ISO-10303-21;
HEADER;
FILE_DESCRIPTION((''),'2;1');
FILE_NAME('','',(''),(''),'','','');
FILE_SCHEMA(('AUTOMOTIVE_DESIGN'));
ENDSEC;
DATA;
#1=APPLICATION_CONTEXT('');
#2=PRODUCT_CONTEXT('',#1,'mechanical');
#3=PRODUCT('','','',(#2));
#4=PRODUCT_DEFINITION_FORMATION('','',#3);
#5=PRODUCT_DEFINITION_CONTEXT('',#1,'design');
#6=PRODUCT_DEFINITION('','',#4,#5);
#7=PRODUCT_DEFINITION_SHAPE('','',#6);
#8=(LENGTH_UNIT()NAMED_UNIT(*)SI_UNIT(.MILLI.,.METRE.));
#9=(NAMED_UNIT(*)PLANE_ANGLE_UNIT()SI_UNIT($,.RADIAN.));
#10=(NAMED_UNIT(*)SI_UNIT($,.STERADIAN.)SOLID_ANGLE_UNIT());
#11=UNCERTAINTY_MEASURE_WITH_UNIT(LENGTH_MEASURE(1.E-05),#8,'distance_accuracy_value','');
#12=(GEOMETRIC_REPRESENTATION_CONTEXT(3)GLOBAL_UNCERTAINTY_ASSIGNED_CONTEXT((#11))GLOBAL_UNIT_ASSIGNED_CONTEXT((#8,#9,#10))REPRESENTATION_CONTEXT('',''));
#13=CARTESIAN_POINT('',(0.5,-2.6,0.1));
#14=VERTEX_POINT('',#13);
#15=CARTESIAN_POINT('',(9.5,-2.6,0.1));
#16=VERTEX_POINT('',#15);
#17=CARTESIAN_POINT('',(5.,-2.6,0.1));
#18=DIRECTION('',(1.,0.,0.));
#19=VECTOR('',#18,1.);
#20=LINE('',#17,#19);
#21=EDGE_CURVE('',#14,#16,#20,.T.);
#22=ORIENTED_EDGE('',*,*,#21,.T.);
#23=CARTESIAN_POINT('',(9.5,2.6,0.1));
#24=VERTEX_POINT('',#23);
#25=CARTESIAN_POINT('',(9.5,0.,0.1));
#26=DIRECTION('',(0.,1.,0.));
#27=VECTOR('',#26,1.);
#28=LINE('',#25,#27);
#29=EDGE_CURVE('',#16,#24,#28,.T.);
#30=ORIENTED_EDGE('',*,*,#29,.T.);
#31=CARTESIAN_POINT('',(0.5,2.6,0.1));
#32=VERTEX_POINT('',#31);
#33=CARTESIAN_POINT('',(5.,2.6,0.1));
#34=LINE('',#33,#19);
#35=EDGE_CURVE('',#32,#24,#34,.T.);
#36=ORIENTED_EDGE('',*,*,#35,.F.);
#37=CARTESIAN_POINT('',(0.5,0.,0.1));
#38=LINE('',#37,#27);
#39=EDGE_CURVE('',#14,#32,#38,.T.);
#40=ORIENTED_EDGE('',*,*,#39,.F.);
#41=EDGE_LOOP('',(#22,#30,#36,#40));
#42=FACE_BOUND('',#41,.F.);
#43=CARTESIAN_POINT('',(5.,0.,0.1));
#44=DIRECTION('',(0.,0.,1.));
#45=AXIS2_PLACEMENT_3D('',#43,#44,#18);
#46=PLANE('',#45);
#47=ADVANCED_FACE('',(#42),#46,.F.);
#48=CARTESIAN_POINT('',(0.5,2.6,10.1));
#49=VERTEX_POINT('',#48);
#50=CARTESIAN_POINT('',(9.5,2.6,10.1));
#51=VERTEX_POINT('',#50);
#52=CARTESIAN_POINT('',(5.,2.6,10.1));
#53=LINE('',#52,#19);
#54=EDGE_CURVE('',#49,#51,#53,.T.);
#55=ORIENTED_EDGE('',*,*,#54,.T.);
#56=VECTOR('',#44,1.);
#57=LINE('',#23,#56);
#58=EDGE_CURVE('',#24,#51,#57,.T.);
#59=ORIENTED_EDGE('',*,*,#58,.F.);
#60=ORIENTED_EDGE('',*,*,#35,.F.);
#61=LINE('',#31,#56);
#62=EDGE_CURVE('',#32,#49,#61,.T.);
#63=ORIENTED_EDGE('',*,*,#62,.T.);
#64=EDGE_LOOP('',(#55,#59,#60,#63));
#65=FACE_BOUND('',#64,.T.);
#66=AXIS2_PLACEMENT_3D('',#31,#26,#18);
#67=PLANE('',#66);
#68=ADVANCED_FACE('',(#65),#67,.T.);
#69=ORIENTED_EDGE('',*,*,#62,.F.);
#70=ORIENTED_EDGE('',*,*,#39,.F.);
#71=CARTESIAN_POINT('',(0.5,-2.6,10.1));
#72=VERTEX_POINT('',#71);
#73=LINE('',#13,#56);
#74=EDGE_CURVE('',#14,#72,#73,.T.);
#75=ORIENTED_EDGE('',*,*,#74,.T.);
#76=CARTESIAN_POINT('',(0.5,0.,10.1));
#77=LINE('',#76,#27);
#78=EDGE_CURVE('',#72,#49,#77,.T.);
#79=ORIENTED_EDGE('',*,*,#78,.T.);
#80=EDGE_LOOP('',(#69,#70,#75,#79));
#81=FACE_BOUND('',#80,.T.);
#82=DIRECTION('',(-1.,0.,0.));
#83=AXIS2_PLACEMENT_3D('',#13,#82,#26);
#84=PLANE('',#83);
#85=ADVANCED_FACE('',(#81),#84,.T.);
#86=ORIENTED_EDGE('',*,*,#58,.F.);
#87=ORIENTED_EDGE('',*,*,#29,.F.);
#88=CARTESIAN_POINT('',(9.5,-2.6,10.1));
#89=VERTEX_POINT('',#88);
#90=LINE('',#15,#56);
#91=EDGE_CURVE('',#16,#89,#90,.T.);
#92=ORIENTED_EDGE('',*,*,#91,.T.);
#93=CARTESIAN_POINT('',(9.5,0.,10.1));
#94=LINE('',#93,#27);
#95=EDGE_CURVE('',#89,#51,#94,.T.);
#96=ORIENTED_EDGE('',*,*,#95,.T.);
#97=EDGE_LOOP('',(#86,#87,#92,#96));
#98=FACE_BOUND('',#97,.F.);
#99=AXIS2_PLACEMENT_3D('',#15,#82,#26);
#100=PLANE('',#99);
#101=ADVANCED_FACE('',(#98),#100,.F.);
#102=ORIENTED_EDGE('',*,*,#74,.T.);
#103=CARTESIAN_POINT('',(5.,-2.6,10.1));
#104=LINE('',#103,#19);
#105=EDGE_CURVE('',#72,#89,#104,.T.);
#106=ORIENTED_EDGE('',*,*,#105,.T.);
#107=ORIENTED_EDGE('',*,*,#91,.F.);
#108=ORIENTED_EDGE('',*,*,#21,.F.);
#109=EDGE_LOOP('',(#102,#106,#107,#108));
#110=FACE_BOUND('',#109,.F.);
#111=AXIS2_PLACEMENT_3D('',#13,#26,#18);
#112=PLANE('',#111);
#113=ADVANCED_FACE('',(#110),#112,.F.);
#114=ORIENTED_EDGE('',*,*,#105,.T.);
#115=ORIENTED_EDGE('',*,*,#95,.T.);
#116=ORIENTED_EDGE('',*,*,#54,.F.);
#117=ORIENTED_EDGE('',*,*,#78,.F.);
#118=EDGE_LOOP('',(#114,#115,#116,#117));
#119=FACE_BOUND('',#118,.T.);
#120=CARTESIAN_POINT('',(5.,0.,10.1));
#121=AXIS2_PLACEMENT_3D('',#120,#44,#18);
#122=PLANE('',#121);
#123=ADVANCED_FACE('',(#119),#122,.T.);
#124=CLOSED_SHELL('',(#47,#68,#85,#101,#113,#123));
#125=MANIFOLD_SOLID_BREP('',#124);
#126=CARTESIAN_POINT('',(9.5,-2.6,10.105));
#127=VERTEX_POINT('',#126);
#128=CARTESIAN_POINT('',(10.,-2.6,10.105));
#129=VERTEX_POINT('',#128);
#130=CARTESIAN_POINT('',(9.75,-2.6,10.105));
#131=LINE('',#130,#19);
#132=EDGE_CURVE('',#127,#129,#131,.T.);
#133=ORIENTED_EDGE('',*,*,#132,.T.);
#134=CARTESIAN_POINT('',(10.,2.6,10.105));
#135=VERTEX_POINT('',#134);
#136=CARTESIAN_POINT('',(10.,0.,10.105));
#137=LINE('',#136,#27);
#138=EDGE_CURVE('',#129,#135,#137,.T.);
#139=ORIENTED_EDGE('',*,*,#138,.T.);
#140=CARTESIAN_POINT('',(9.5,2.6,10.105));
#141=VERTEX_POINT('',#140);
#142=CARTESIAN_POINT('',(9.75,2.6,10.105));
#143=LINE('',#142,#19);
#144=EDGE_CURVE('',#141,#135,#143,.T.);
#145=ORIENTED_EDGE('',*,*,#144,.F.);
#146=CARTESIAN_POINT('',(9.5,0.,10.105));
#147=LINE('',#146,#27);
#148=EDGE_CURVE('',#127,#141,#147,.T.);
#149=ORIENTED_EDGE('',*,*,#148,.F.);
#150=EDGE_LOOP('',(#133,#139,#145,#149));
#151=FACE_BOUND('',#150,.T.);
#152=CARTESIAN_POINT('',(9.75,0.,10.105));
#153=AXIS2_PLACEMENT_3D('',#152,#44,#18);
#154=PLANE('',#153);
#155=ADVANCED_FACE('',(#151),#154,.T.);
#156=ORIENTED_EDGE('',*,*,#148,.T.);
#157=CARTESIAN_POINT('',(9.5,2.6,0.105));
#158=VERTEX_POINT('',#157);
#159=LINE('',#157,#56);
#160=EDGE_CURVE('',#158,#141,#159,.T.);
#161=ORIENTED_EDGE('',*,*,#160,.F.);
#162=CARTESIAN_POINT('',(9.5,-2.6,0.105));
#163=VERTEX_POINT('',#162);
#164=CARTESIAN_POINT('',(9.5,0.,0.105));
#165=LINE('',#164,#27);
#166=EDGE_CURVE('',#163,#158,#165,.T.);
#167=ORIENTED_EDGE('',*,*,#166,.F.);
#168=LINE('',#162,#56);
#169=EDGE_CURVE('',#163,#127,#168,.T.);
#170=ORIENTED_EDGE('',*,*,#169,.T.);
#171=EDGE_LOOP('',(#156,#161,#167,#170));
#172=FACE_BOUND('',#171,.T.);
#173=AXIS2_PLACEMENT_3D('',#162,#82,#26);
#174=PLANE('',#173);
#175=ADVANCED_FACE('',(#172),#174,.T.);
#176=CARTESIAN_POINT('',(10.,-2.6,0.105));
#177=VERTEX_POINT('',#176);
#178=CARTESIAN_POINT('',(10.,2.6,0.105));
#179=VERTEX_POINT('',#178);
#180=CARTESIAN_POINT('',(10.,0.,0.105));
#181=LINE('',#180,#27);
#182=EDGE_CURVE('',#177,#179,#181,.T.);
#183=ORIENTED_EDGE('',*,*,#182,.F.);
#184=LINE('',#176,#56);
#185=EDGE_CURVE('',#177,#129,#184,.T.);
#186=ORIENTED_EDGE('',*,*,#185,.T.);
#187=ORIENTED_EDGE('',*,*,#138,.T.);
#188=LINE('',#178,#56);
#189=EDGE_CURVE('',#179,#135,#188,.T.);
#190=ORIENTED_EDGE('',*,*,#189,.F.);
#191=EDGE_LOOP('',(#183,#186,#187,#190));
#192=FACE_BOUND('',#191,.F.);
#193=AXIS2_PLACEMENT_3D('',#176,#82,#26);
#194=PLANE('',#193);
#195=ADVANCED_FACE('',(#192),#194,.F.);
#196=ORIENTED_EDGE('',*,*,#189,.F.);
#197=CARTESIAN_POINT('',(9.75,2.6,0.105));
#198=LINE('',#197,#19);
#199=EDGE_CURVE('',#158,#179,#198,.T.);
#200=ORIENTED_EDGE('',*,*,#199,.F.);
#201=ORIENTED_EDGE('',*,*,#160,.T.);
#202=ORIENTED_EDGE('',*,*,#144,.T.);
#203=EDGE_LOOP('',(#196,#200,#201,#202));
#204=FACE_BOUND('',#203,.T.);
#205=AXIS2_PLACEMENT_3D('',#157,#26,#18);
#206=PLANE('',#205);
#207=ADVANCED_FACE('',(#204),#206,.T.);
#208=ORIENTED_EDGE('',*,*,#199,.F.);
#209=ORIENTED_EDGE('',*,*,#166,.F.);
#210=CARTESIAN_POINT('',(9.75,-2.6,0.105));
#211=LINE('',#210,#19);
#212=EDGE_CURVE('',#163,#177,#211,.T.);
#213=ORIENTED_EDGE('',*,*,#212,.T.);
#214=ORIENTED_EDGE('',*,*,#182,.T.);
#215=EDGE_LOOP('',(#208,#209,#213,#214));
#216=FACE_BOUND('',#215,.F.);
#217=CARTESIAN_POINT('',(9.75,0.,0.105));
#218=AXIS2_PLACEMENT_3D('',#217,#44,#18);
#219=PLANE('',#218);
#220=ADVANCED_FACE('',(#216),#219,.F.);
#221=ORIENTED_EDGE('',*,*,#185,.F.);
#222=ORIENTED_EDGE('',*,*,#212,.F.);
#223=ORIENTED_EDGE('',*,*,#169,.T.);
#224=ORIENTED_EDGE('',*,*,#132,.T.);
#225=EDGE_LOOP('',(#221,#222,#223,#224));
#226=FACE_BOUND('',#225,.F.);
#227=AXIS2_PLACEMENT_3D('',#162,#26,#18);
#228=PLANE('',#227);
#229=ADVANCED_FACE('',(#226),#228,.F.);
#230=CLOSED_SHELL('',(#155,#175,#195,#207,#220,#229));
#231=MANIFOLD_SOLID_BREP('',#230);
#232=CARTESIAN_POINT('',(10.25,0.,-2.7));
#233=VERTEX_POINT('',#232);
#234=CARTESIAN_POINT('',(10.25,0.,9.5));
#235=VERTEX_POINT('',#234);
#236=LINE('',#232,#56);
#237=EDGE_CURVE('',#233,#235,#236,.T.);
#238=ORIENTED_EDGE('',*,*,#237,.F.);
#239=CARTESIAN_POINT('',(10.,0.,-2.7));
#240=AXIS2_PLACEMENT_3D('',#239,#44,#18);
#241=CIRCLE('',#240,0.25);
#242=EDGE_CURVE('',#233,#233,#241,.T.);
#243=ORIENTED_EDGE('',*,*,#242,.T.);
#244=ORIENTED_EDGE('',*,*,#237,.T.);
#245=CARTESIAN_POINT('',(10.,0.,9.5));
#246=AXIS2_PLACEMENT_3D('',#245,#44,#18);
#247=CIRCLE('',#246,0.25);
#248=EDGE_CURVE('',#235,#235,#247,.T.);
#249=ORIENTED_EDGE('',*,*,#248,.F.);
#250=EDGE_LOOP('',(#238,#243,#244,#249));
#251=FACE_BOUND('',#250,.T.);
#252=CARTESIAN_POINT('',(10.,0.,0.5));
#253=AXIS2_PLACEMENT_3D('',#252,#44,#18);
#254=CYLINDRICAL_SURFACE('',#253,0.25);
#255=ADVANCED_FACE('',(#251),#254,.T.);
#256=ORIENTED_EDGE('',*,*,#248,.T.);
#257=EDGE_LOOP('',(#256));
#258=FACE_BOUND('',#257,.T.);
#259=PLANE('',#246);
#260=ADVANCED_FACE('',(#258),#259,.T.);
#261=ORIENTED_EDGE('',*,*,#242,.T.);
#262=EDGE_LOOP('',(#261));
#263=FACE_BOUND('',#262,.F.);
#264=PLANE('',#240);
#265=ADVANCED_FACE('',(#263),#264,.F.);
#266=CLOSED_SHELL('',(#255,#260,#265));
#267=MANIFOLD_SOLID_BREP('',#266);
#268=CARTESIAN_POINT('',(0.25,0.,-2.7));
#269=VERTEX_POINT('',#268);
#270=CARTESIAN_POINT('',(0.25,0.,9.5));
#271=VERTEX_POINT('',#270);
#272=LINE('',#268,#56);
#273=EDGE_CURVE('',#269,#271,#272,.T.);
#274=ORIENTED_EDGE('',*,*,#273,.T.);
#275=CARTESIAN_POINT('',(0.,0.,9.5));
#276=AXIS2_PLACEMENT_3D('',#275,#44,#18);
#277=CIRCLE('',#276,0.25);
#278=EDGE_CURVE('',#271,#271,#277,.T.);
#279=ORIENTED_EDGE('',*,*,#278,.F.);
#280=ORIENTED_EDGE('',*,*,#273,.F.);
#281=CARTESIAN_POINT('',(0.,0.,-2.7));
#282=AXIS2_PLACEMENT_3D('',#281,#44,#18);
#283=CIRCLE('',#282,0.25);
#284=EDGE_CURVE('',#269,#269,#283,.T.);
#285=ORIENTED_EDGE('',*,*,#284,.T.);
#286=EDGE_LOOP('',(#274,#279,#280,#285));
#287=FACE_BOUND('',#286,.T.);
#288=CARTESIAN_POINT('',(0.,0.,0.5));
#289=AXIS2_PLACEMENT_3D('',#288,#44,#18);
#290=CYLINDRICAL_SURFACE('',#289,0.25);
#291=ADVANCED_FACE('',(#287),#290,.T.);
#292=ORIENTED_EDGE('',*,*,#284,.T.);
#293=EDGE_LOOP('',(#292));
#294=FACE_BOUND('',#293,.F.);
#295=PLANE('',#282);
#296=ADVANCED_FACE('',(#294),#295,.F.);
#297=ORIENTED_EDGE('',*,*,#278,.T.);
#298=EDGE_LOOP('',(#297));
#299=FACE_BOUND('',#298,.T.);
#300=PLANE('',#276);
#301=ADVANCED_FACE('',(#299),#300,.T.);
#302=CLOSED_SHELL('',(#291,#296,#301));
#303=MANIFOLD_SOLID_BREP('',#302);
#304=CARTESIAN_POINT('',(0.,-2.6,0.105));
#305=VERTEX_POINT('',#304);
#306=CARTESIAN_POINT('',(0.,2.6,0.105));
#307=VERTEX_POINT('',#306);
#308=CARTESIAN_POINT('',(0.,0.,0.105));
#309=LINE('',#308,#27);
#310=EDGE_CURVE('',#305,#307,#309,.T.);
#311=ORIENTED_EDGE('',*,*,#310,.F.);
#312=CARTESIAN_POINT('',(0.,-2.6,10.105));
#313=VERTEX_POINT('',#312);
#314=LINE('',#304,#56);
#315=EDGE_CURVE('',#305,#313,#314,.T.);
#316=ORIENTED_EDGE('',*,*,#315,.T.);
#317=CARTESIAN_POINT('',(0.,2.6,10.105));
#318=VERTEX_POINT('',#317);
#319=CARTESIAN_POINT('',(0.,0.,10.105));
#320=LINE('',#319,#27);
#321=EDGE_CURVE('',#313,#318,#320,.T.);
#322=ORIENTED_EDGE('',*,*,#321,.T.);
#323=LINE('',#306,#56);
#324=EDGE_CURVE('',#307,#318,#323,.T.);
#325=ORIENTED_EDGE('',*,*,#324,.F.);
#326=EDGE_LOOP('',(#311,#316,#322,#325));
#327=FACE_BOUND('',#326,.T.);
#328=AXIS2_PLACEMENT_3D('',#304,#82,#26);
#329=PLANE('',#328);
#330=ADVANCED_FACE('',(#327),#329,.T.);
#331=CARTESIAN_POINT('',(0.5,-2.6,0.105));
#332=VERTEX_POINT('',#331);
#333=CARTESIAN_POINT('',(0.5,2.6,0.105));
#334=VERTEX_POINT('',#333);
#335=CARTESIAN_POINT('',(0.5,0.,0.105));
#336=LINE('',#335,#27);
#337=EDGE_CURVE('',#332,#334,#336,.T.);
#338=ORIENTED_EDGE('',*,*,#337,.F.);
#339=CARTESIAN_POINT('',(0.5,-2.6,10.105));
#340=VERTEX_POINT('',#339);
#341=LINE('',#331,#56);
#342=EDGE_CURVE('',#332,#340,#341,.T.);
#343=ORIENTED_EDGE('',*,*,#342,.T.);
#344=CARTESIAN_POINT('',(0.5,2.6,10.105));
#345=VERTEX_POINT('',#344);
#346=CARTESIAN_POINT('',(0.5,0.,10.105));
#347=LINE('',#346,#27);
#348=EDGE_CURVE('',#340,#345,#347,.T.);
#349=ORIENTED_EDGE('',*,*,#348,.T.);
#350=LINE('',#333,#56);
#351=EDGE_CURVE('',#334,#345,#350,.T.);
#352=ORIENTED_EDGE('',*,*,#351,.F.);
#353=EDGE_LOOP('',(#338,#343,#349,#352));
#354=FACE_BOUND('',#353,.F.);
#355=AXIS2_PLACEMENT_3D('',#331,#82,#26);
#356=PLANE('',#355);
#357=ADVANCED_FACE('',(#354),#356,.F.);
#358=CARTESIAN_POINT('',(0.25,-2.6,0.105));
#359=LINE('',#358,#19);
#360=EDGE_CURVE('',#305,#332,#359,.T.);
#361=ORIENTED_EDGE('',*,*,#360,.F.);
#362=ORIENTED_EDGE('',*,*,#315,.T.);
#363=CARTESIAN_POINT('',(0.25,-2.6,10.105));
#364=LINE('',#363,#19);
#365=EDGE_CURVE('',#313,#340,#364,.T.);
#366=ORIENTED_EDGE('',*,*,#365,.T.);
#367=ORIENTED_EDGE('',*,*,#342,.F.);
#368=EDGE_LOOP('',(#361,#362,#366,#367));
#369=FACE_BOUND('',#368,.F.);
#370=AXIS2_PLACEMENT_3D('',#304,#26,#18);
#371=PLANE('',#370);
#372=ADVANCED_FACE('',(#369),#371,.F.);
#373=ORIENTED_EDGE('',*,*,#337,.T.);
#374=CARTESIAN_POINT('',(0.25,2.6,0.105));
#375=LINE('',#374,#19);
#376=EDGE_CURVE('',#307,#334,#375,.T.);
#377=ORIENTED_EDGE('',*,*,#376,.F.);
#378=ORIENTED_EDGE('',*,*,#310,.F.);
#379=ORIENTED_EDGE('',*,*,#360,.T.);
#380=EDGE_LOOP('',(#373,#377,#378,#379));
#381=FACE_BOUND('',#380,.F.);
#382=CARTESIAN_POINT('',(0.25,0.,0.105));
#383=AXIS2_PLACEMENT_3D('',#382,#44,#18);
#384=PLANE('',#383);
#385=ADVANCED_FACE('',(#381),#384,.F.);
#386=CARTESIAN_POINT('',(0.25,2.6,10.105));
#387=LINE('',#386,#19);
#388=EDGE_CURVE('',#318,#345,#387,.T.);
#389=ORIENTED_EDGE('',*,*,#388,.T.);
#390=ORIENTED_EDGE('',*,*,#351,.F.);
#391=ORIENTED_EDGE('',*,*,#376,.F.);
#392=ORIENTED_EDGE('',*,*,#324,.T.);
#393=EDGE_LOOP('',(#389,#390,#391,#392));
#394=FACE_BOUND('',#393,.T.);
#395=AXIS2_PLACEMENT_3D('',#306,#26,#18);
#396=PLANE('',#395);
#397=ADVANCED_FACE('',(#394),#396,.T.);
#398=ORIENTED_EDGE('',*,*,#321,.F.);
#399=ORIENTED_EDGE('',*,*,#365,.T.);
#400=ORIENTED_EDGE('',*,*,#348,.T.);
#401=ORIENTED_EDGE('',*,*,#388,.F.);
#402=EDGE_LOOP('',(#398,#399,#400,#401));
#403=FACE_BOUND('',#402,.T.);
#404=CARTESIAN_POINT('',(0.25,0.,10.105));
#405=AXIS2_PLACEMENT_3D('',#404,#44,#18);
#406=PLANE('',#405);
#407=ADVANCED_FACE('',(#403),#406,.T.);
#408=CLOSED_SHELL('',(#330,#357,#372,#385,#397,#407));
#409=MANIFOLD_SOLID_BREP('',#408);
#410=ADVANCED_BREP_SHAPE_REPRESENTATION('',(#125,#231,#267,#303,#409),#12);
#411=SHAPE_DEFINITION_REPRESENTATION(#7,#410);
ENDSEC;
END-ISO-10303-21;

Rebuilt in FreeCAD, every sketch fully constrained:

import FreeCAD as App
import Part
import Sketcher
Q = App.Units.Quantity

doc = App.newDocument("Part")
body = doc.addObject("PartDesign::Body", "Body")

sketch1 = doc.addObject("Sketcher::SketchObject", "Sketch")
body.addObject(sketch1)
sketch1.AttachmentSupport = (doc.XY_Plane, [""])
sketch1.MapMode = "FlatFace"
sketch1.AttachmentOffset = App.Placement(App.Vector(0, 0, 0.1), App.Rotation())
sketch1.addGeometry(Part.LineSegment(App.Vector(0.5, 2.6, 0), App.Vector(0.5, -2.6, 0)), False)
sketch1.addGeometry(Part.LineSegment(App.Vector(0.5, -2.6, 0), App.Vector(9.5, -2.6, 0)), False)
sketch1.addGeometry(Part.LineSegment(App.Vector(9.5, -2.6, 0), App.Vector(9.5, 2.6, 0)), False)
sketch1.addGeometry(Part.LineSegment(App.Vector(9.5, 2.6, 0), App.Vector(0.5, 2.6, 0)), False)
sketch1.addConstraint(Sketcher.Constraint("Coincident", 0, 2, 1, 1))
sketch1.addConstraint(Sketcher.Constraint("Coincident", 1, 2, 2, 1))
sketch1.addConstraint(Sketcher.Constraint("Coincident", 2, 2, 3, 1))
sketch1.addConstraint(Sketcher.Constraint("Coincident", 3, 2, 0, 1))
sketch1.addConstraint(Sketcher.Constraint("Vertical", 0))
sketch1.addConstraint(Sketcher.Constraint("Horizontal", 1))
sketch1.addConstraint(Sketcher.Constraint("Vertical", 2))
sketch1.addConstraint(Sketcher.Constraint("Horizontal", 3))
sketch1.addConstraint(Sketcher.Constraint("DistanceX", 1, 1, 1, 2, Q("9 mm")))
sketch1.addConstraint(Sketcher.Constraint("DistanceY", 0, 2, 0, 1, Q("5.2 mm")))
sketch1.addConstraint(Sketcher.Constraint("DistanceX", -1, 1, 0, 2, Q("0.5 mm")))
sketch1.addConstraint(Sketcher.Constraint("DistanceY", 0, 2, -1, 1, Q("2.6 mm")))
pad1 = doc.addObject("PartDesign::Pad", "Pad")
body.addObject(pad1)
pad1.Profile = sketch1
pad1.Length = 10
body2 = doc.addObject("PartDesign::Body", "Body001")
body2.AllowCompound = True

sketch2 = doc.addObject("Sketcher::SketchObject", "Sketch001")
body2.addObject(sketch2)
sketch2.AttachmentSupport = (doc.getObject("XY_Plane001"), [""])
sketch2.MapMode = "FlatFace"
sketch2.AttachmentOffset = App.Placement(App.Vector(0, 0, 0.5), App.Rotation())
sketch2.addGeometry(Part.Circle(App.Vector(0, 0, 0), App.Vector(0, 0, 1), 0.25), False)
sketch2.addGeometry(Part.Circle(App.Vector(10, 0, 0), App.Vector(0, 0, 1), 0.25), False)
sketch2.addConstraint(Sketcher.Constraint("Coincident", 0, 3, -1, 1))
sketch2.addConstraint(Sketcher.Constraint("Equal", 0, 1))
sketch2.addConstraint(Sketcher.Constraint("PointOnObject", 1, 3, -1))
sketch2.addConstraint(Sketcher.Constraint("Diameter", 0, Q("0.5 mm")))
sketch2.addConstraint(Sketcher.Constraint("DistanceX", -1, 1, 1, 3, Q("10 mm")))
pad2 = doc.addObject("PartDesign::Pad", "Pad001")
body2.addObject(pad2)
pad2.Profile = sketch2
pad2.Type = "TwoLengths"
pad2.Length = 9
pad2.Length2 = 3.2
body3 = doc.addObject("PartDesign::Body", "Body002")
body3.AllowCompound = True

sketch3 = doc.addObject("Sketcher::SketchObject", "Sketch002")
body3.addObject(sketch3)
sketch3.AttachmentSupport = (doc.getObject("XY_Plane002"), [""])
sketch3.MapMode = "FlatFace"
sketch3.AttachmentOffset = App.Placement(App.Vector(0, 0, 0.105), App.Rotation())
sketch3.addGeometry(Part.LineSegment(App.Vector(0, 2.6, 0), App.Vector(0, -2.6, 0)), False)
sketch3.addGeometry(Part.LineSegment(App.Vector(0, -2.6, 0), App.Vector(0.5, -2.6, 0)), False)
sketch3.addGeometry(Part.LineSegment(App.Vector(0.5, -2.6, 0), App.Vector(0.5, 2.6, 0)), False)
sketch3.addGeometry(Part.LineSegment(App.Vector(0.5, 2.6, 0), App.Vector(0, 2.6, 0)), False)
sketch3.addGeometry(Part.LineSegment(App.Vector(9.5, 2.6, 0), App.Vector(9.5, -2.6, 0)), False)
sketch3.addGeometry(Part.LineSegment(App.Vector(9.5, -2.6, 0), App.Vector(10, -2.6, 0)), False)
sketch3.addGeometry(Part.LineSegment(App.Vector(10, -2.6, 0), App.Vector(10, 2.6, 0)), False)
sketch3.addGeometry(Part.LineSegment(App.Vector(10, 2.6, 0), App.Vector(9.5, 2.6, 0)), False)
sketch3.addConstraint(Sketcher.Constraint("Coincident", 0, 2, 1, 1))
sketch3.addConstraint(Sketcher.Constraint("Coincident", 1, 2, 2, 1))
sketch3.addConstraint(Sketcher.Constraint("Coincident", 2, 2, 3, 1))
sketch3.addConstraint(Sketcher.Constraint("Coincident", 3, 2, 0, 1))
sketch3.addConstraint(Sketcher.Constraint("Coincident", 4, 2, 5, 1))
sketch3.addConstraint(Sketcher.Constraint("Coincident", 5, 2, 6, 1))
sketch3.addConstraint(Sketcher.Constraint("Coincident", 6, 2, 7, 1))
sketch3.addConstraint(Sketcher.Constraint("Coincident", 7, 2, 4, 1))
sketch3.addConstraint(Sketcher.Constraint("Vertical", 0))
sketch3.addConstraint(Sketcher.Constraint("Horizontal", 1))
sketch3.addConstraint(Sketcher.Constraint("Vertical", 2))
sketch3.addConstraint(Sketcher.Constraint("Horizontal", 3))
sketch3.addConstraint(Sketcher.Constraint("Vertical", 4))
sketch3.addConstraint(Sketcher.Constraint("Horizontal", 5))
sketch3.addConstraint(Sketcher.Constraint("Vertical", 6))
sketch3.addConstraint(Sketcher.Constraint("Horizontal", 7))
sketch3.addConstraint(Sketcher.Constraint("Symmetric", 0, 2, 3, 2, -1, 1))
sketch3.addConstraint(Sketcher.Constraint("Horizontal", 1, 2, 4, 2))
sketch3.addConstraint(Sketcher.Constraint("Horizontal", 3, 2, 6, 2))
sketch3.addConstraint(Sketcher.Constraint("Equal", 3, 5))
sketch3.addConstraint(Sketcher.Constraint("DistanceX", 1, 1, 1, 2, Q("0.5 mm")))
sketch3.addConstraint(Sketcher.Constraint("DistanceY", 0, 2, 0, 1, Q("5.2 mm")))
sketch3.addConstraint(Sketcher.Constraint("DistanceX", -1, 1, 5, 2, Q("10 mm")))
pad3 = doc.addObject("PartDesign::Pad", "Pad002")
body3.addObject(pad3)
pad3.Profile = sketch3
pad3.Length = 10

doc.recompute()
